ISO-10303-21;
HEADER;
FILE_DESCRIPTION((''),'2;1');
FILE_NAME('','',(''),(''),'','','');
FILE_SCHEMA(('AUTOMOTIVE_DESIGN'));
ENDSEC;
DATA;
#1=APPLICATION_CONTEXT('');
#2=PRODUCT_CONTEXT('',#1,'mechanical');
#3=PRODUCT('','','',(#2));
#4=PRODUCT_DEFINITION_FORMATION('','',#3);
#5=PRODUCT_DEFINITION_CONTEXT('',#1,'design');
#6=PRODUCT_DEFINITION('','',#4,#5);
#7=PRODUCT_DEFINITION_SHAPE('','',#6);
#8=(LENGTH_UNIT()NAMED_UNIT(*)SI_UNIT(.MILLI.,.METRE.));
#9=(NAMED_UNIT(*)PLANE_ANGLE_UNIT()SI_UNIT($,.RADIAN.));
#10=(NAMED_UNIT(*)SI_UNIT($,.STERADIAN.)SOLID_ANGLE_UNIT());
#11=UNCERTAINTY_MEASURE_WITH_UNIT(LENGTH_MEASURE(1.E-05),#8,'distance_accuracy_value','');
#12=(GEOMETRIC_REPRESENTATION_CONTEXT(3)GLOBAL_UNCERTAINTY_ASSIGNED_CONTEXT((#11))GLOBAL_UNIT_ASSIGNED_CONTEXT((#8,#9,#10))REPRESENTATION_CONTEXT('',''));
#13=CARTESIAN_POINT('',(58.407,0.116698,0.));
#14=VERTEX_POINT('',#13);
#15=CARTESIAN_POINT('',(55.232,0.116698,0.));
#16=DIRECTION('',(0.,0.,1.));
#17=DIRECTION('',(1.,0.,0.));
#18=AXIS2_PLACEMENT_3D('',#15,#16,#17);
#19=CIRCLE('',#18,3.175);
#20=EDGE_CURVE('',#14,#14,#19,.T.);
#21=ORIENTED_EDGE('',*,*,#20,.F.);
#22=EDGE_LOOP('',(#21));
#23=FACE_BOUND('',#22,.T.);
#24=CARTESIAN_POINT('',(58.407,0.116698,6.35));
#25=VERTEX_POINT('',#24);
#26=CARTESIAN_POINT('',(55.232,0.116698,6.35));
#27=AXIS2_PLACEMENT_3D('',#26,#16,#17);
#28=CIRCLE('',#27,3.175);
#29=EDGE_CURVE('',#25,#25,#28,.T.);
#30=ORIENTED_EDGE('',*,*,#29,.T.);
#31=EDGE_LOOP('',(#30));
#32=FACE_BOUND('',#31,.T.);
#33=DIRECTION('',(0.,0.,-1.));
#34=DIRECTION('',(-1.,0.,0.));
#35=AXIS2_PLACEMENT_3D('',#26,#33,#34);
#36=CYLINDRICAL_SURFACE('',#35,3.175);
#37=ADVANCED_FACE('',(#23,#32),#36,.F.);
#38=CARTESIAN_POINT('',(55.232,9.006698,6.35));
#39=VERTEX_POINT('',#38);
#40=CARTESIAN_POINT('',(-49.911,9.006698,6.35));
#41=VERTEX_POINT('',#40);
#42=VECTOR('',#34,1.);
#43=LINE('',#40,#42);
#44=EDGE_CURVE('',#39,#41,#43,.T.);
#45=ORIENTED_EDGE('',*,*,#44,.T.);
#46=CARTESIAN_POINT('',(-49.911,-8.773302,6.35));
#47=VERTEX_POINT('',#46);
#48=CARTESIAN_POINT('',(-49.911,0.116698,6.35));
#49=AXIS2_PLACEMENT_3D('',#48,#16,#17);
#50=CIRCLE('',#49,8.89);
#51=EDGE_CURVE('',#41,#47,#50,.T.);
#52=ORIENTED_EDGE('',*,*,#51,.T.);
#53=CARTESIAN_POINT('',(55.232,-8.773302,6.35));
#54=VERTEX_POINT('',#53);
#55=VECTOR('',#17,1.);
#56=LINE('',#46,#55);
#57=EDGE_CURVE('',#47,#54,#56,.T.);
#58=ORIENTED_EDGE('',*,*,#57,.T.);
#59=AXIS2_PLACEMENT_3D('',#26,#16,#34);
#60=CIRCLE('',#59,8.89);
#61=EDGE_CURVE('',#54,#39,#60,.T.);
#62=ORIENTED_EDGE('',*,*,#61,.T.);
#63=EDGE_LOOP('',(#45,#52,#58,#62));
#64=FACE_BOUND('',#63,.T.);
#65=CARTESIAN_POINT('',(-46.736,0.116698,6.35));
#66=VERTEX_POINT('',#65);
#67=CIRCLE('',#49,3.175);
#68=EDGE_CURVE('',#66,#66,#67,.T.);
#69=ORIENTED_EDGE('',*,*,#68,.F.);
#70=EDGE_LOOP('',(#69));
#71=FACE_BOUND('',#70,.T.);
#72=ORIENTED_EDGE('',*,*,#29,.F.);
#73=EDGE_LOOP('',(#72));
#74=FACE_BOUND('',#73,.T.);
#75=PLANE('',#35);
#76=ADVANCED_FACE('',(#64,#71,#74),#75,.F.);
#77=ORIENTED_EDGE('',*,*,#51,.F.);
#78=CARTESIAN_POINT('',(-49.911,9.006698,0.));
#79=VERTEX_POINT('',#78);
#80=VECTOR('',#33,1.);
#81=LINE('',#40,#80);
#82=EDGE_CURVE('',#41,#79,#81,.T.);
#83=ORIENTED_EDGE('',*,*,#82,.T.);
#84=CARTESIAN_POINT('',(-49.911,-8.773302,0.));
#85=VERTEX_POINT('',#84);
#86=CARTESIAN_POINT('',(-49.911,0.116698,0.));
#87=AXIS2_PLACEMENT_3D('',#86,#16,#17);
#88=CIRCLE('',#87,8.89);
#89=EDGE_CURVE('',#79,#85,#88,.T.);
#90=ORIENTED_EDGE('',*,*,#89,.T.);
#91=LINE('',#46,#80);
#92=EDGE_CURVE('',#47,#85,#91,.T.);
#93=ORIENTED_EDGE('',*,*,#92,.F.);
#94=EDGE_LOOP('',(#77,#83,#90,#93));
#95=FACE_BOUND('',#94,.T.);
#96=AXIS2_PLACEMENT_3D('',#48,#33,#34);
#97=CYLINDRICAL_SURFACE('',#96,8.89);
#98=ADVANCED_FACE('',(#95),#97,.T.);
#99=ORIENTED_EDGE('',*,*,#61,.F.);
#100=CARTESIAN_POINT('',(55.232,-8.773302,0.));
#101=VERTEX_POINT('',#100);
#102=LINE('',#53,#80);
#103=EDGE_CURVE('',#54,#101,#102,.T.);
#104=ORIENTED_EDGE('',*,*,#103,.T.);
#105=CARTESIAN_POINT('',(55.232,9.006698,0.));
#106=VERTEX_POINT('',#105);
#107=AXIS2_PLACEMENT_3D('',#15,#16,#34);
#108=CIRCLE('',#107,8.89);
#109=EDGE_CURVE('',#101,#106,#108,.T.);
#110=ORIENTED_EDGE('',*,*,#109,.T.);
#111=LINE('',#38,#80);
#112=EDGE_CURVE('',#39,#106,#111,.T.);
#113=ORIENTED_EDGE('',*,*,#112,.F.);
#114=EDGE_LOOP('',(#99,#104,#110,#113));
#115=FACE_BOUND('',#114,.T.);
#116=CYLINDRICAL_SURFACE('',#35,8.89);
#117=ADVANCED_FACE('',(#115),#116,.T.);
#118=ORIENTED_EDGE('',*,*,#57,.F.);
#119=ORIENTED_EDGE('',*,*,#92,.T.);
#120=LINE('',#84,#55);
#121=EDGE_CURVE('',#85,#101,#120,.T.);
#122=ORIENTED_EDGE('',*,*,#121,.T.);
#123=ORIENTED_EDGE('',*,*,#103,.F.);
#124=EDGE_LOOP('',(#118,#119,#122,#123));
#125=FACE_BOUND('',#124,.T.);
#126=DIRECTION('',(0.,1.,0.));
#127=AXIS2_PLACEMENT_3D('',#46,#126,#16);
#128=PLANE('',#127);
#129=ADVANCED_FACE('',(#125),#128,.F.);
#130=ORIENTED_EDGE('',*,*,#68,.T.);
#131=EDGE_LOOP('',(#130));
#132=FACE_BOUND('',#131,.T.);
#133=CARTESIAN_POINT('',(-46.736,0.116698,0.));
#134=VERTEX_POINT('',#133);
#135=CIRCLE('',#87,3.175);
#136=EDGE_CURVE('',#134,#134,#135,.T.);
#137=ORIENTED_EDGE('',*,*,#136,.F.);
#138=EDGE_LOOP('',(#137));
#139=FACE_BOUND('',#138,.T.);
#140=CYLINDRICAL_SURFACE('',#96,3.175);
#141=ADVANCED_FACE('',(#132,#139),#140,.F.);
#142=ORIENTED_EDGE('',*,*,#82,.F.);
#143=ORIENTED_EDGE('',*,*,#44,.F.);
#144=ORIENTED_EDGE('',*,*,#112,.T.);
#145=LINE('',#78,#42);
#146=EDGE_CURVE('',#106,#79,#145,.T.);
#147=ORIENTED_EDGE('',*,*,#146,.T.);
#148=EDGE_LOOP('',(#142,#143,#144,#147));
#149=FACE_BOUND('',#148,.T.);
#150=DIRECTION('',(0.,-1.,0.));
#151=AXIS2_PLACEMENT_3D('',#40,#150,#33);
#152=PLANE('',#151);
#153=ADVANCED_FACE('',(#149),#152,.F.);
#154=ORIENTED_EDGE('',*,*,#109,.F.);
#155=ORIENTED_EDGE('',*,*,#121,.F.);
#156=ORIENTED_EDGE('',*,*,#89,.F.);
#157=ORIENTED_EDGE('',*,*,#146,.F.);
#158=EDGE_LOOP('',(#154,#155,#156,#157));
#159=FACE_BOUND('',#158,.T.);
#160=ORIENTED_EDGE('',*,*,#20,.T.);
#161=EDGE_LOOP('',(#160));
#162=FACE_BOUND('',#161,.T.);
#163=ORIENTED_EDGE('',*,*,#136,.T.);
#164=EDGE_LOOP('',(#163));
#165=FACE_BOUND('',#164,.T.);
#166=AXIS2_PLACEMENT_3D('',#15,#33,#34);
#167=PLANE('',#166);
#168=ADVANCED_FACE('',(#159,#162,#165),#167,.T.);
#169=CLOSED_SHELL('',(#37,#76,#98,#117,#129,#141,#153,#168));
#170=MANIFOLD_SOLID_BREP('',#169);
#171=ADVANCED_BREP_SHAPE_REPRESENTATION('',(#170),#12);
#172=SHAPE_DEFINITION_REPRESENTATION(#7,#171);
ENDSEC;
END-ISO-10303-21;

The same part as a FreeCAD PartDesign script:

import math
import FreeCAD as App
import Part
import Sketcher

V = App.Vector
Q = App.Units.Quantity

doc = App.newDocument("Part")
params = doc.addObject("Spreadsheet::Sheet", "Params")
for row, (alias, value) in enumerate([
    ("sketch1_diameter", "0.25 in"),
    ("sketch1_radius", "0.35 in"),
    ("pad1_length", "0.25 in"),
], start=1):
    params.set(f"A{row}", alias)
    params.set(f"B{row}", "=" + value)
    params.setAlias(f"B{row}", alias)

body = doc.addObject("PartDesign::Body", "Body")

sketch1 = body.newObject("Sketcher::SketchObject", "Sketch")
sketch1.AttachmentSupport = (doc.getObject("XY_Plane"), [""])
sketch1.MapMode = "FlatFace"
sketch1.addGeometry(Part.LineSegment(V(-49.9, -8.8, 0), V(55.2, -8.8, 0)), False)
sketch1.addGeometry(Part.ArcOfCircle(Part.Circle(V(55.2, 0.1, 0), V(0, 0, 1), 8.9), math.radians(-90), math.radians(90)), False)
sketch1.addGeometry(Part.LineSegment(V(55.2, 9, 0), V(-49.9, 9, 0)), False)
sketch1.addGeometry(Part.ArcOfCircle(Part.Circle(V(-49.9, 0.1, 0), V(0, 0, 1), 8.9), math.radians(90), math.radians(270)), False)
sketch1.addGeometry(Part.Circle(V(-49.9, 0.1, 0), V(0, 0, 1), 3.2), False)
sketch1.addGeometry(Part.Circle(V(55.2, 0.1, 0), V(0, 0, 1), 3.2), False)
sketch1.addConstraint(Sketcher.Constraint("Tangent", 0, 2, 1, 1))
sketch1.addConstraint(Sketcher.Constraint("Tangent", 1, 2, 2, 1))
sketch1.addConstraint(Sketcher.Constraint("Tangent", 2, 2, 3, 1))
sketch1.addConstraint(Sketcher.Constraint("Tangent", 3, 2, 0, 1))
sketch1.addConstraint(Sketcher.Constraint("Horizontal", 0))
sketch1.addConstraint(Sketcher.Constraint("Horizontal", 2))
sketch1.addConstraint(Sketcher.Constraint("Coincident", 4, 3, 3, 3))
sketch1.addConstraint(Sketcher.Constraint("Coincident", 5, 3, 1, 3))
sketch1.addConstraint(Sketcher.Constraint("Equal", 4, 5))
sketch1.addConstraint(Sketcher.Constraint("Diameter", 4, Q("0.25 in")))
sketch1.addConstraint(Sketcher.Constraint("Radius", 1, Q("0.35 in")))
sketch1.addConstraint(Sketcher.Constraint("DistanceX", 3, 3, -1, 1, Q("1.965 in")))
sketch1.addConstraint(Sketcher.Constraint("DistanceX", 0, 1, 0, 2, 105.143))
sketch1.addConstraint(Sketcher.Constraint("DistanceY", -1, 1, 1, 3, 0.116698))
sketch1.setExpression("Constraints[9]", "Params.sketch1_diameter")
sketch1.setExpression("Constraints[10]", "Params.sketch1_radius")
pad1 = body.newObject("PartDesign::Pad", "Pad")
pad1.Profile = sketch1
pad1.setExpression("Length", "Params.pad1_length")

doc.recompute()
